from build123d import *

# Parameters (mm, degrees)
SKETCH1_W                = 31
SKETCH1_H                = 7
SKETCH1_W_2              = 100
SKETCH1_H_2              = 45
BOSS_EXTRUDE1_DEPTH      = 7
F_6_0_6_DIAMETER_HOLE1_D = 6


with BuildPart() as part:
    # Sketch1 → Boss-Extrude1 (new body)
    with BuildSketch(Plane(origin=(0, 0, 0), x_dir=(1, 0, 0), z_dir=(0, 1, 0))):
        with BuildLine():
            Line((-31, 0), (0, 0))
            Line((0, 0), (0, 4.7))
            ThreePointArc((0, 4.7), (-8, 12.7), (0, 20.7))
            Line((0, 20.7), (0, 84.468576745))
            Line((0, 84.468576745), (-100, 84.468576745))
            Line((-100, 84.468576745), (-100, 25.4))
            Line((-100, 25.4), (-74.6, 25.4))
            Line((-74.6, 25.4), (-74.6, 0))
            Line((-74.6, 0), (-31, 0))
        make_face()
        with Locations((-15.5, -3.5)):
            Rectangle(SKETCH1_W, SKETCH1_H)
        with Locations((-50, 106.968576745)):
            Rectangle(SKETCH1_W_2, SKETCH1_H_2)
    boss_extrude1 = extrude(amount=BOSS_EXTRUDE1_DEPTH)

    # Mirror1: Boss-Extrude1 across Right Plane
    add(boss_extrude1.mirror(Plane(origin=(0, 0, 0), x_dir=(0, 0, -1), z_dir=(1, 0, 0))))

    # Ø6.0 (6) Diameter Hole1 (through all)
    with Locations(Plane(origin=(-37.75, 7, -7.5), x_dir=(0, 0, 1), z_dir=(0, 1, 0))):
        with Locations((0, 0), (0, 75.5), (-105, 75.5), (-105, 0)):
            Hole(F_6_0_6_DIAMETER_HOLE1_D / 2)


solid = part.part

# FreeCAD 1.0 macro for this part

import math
import FreeCAD as App
import Part
import Sketcher
from FreeCAD import Vector
Q = App.Units.Quantity

doc = App.newDocument("Part")
body = doc.addObject("PartDesign::Body", "Body")

# Sketch on XZ plane
sketch1 = doc.addObject("Sketcher::SketchObject", "Sketch")
body.addObject(sketch1)
sketch1.AttachmentSupport = (doc.XZ_Plane, [""])
sketch1.MapMode = "FlatFace"
sketch1.addGeometry([
    Part.ArcOfCircle(Part.Circle(Vector(0, -13, 0), Vector(0, 0, 1), 8), math.radians(90), math.radians(270)),  # 0
    Part.LineSegment(Vector(0, -21, 0), Vector(0, -129, 0)),  # 1
    Part.LineSegment(Vector(0, -129, 0), Vector(-100, -129, 0)),  # 2
    Part.LineSegment(Vector(-100, -129, 0), Vector(-100, -25, 0)),  # 3
    Part.LineSegment(Vector(-100, -25, 0), Vector(-75, -25, 0)),  # 4
    Part.LineSegment(Vector(-75, -25, 0), Vector(-75, 0, 0)),  # 5
    Part.LineSegment(Vector(-75, 0, 0), Vector(-31, 0, 0)),  # 6
    Part.LineSegment(Vector(-31, 0, 0), Vector(-31, 7, 0)),  # 7
    Part.LineSegment(Vector(-31, 7, 0), Vector(0, 7, 0)),  # 8
    Part.LineSegment(Vector(0, 7, 0), Vector(0, -5, 0)),  # 9
], False)
sketch1.addConstraint([
    Sketcher.Constraint("Coincident", 0, 2, 1, 1),
    Sketcher.Constraint("Coincident", 1, 2, 2, 1),
    Sketcher.Constraint("Coincident", 2, 2, 3, 1),
    Sketcher.Constraint("Coincident", 3, 2, 4, 1),
    Sketcher.Constraint("Coincident", 4, 2, 5, 1),
    Sketcher.Constraint("Coincident", 5, 2, 6, 1),
    Sketcher.Constraint("Coincident", 6, 2, 7, 1),
    Sketcher.Constraint("Coincident", 7, 2, 8, 1),
    Sketcher.Constraint("Coincident", 8, 2, 9, 1),
    Sketcher.Constraint("Coincident", 9, 2, 0, 1),
    Sketcher.Constraint("Vertical", 1),
    Sketcher.Constraint("Horizontal", 2),
    Sketcher.Constraint("Vertical", 3),
    Sketcher.Constraint("Horizontal", 4),
    Sketcher.Constraint("Vertical", 5),
    Sketcher.Constraint("Horizontal", 6),
    Sketcher.Constraint("Vertical", 7),
    Sketcher.Constraint("Horizontal", 8),
    Sketcher.Constraint("Vertical", 9),
    Sketcher.Constraint("PointOnObject", 0, 3, -2),
    Sketcher.Constraint("PointOnObject", 0, 2, -2),
    Sketcher.Constraint("PointOnObject", 5, 2, -1),
    Sketcher.Constraint("PointOnObject", 8, 2, -2),
    Sketcher.Constraint("Equal", 4, 5),
    Sketcher.Constraint("Radius", 0, Q("8 mm")),
    Sketcher.Constraint("DistanceX", 2, 2, 2, 1, Q("100 mm")),
    Sketcher.Constraint("DistanceX", 8, 1, 8, 2, Q("31 mm")),
    Sketcher.Constraint("DistanceY", 7, 1, 7, 2, Q("7 mm")),
    Sketcher.Constraint("DistanceX", 4, 1, 4, 2, Q("25.4 mm")),
    Sketcher.Constraint("DistanceY", 9, 2, 9, 1, Q("11.7 mm")),
    Sketcher.Constraint("DistanceY", 1, 2, 1, 1, Q("108.768577 mm")),
])
pad1 = doc.addObject("PartDesign::Pad", "Pad")
body.addObject(pad1)
pad1.Profile = sketch1
pad1.Length = 7
pad1.Reversed = True
doc.recompute()

mirrored = doc.addObject("PartDesign::Mirrored", "Mirrored")
body.addObject(mirrored)
mirrored.Originals = [pad1]
mirrored.MirrorPlane = (doc.YZ_Plane, [""])
body.Tip = mirrored

# Sketch on XZ plane
sketch2 = doc.addObject("Sketcher::SketchObject", "Sketch001")
body.addObject(sketch2)
sketch2.AttachmentSupport = (doc.XZ_Plane, [""])
sketch2.MapMode = "FlatFace"
sketch2.AttachmentOffset = App.Placement(Vector(0, 0, -7), App.Rotation())
sketch2.addGeometry([
    Part.Circle(Vector(-37.8, -7.5, 0), Vector(0, 0, 1), 3),
    Part.Circle(Vector(37.8, -7.5, 0), Vector(0, 0, 1), 3),
    Part.Circle(Vector(37.8, -112.5, 0), Vector(0, 0, 1), 3),
    Part.Circle(Vector(-37.8, -112.5, 0), Vector(0, 0, 1), 3),
], False)
sketch2.addConstraint([
    Sketcher.Constraint("Equal", 0, 1),
    Sketcher.Constraint("Equal", 1, 2),
    Sketcher.Constraint("Equal", 2, 3),
    Sketcher.Constraint("Symmetric", 0, 3, 1, 3, -2),
    Sketcher.Constraint("Symmetric", 2, 3, 3, 3, -2),
    Sketcher.Constraint("Vertical", 1, 3, 2, 3),
    Sketcher.Constraint("Diameter", 0, Q("6 mm")),
    Sketcher.Constraint("DistanceY", 2, 3, 1, 3, Q("105 mm")),
    Sketcher.Constraint("DistanceY", 0, 3, -1, 1, Q("7.5 mm")),
    Sketcher.Constraint("DistanceX", 0, 3, 1, 3, Q("75.5 mm")),
])
doc.recompute()
hole = doc.addObject("PartDesign::Hole", "Hole")
body.addObject(hole)
hole.Profile = sketch2
hole.ThreadType = "None"
hole.Diameter = 6
hole.DepthType = "ThroughAll"
hole.Reversed = True

doc.recompute()
